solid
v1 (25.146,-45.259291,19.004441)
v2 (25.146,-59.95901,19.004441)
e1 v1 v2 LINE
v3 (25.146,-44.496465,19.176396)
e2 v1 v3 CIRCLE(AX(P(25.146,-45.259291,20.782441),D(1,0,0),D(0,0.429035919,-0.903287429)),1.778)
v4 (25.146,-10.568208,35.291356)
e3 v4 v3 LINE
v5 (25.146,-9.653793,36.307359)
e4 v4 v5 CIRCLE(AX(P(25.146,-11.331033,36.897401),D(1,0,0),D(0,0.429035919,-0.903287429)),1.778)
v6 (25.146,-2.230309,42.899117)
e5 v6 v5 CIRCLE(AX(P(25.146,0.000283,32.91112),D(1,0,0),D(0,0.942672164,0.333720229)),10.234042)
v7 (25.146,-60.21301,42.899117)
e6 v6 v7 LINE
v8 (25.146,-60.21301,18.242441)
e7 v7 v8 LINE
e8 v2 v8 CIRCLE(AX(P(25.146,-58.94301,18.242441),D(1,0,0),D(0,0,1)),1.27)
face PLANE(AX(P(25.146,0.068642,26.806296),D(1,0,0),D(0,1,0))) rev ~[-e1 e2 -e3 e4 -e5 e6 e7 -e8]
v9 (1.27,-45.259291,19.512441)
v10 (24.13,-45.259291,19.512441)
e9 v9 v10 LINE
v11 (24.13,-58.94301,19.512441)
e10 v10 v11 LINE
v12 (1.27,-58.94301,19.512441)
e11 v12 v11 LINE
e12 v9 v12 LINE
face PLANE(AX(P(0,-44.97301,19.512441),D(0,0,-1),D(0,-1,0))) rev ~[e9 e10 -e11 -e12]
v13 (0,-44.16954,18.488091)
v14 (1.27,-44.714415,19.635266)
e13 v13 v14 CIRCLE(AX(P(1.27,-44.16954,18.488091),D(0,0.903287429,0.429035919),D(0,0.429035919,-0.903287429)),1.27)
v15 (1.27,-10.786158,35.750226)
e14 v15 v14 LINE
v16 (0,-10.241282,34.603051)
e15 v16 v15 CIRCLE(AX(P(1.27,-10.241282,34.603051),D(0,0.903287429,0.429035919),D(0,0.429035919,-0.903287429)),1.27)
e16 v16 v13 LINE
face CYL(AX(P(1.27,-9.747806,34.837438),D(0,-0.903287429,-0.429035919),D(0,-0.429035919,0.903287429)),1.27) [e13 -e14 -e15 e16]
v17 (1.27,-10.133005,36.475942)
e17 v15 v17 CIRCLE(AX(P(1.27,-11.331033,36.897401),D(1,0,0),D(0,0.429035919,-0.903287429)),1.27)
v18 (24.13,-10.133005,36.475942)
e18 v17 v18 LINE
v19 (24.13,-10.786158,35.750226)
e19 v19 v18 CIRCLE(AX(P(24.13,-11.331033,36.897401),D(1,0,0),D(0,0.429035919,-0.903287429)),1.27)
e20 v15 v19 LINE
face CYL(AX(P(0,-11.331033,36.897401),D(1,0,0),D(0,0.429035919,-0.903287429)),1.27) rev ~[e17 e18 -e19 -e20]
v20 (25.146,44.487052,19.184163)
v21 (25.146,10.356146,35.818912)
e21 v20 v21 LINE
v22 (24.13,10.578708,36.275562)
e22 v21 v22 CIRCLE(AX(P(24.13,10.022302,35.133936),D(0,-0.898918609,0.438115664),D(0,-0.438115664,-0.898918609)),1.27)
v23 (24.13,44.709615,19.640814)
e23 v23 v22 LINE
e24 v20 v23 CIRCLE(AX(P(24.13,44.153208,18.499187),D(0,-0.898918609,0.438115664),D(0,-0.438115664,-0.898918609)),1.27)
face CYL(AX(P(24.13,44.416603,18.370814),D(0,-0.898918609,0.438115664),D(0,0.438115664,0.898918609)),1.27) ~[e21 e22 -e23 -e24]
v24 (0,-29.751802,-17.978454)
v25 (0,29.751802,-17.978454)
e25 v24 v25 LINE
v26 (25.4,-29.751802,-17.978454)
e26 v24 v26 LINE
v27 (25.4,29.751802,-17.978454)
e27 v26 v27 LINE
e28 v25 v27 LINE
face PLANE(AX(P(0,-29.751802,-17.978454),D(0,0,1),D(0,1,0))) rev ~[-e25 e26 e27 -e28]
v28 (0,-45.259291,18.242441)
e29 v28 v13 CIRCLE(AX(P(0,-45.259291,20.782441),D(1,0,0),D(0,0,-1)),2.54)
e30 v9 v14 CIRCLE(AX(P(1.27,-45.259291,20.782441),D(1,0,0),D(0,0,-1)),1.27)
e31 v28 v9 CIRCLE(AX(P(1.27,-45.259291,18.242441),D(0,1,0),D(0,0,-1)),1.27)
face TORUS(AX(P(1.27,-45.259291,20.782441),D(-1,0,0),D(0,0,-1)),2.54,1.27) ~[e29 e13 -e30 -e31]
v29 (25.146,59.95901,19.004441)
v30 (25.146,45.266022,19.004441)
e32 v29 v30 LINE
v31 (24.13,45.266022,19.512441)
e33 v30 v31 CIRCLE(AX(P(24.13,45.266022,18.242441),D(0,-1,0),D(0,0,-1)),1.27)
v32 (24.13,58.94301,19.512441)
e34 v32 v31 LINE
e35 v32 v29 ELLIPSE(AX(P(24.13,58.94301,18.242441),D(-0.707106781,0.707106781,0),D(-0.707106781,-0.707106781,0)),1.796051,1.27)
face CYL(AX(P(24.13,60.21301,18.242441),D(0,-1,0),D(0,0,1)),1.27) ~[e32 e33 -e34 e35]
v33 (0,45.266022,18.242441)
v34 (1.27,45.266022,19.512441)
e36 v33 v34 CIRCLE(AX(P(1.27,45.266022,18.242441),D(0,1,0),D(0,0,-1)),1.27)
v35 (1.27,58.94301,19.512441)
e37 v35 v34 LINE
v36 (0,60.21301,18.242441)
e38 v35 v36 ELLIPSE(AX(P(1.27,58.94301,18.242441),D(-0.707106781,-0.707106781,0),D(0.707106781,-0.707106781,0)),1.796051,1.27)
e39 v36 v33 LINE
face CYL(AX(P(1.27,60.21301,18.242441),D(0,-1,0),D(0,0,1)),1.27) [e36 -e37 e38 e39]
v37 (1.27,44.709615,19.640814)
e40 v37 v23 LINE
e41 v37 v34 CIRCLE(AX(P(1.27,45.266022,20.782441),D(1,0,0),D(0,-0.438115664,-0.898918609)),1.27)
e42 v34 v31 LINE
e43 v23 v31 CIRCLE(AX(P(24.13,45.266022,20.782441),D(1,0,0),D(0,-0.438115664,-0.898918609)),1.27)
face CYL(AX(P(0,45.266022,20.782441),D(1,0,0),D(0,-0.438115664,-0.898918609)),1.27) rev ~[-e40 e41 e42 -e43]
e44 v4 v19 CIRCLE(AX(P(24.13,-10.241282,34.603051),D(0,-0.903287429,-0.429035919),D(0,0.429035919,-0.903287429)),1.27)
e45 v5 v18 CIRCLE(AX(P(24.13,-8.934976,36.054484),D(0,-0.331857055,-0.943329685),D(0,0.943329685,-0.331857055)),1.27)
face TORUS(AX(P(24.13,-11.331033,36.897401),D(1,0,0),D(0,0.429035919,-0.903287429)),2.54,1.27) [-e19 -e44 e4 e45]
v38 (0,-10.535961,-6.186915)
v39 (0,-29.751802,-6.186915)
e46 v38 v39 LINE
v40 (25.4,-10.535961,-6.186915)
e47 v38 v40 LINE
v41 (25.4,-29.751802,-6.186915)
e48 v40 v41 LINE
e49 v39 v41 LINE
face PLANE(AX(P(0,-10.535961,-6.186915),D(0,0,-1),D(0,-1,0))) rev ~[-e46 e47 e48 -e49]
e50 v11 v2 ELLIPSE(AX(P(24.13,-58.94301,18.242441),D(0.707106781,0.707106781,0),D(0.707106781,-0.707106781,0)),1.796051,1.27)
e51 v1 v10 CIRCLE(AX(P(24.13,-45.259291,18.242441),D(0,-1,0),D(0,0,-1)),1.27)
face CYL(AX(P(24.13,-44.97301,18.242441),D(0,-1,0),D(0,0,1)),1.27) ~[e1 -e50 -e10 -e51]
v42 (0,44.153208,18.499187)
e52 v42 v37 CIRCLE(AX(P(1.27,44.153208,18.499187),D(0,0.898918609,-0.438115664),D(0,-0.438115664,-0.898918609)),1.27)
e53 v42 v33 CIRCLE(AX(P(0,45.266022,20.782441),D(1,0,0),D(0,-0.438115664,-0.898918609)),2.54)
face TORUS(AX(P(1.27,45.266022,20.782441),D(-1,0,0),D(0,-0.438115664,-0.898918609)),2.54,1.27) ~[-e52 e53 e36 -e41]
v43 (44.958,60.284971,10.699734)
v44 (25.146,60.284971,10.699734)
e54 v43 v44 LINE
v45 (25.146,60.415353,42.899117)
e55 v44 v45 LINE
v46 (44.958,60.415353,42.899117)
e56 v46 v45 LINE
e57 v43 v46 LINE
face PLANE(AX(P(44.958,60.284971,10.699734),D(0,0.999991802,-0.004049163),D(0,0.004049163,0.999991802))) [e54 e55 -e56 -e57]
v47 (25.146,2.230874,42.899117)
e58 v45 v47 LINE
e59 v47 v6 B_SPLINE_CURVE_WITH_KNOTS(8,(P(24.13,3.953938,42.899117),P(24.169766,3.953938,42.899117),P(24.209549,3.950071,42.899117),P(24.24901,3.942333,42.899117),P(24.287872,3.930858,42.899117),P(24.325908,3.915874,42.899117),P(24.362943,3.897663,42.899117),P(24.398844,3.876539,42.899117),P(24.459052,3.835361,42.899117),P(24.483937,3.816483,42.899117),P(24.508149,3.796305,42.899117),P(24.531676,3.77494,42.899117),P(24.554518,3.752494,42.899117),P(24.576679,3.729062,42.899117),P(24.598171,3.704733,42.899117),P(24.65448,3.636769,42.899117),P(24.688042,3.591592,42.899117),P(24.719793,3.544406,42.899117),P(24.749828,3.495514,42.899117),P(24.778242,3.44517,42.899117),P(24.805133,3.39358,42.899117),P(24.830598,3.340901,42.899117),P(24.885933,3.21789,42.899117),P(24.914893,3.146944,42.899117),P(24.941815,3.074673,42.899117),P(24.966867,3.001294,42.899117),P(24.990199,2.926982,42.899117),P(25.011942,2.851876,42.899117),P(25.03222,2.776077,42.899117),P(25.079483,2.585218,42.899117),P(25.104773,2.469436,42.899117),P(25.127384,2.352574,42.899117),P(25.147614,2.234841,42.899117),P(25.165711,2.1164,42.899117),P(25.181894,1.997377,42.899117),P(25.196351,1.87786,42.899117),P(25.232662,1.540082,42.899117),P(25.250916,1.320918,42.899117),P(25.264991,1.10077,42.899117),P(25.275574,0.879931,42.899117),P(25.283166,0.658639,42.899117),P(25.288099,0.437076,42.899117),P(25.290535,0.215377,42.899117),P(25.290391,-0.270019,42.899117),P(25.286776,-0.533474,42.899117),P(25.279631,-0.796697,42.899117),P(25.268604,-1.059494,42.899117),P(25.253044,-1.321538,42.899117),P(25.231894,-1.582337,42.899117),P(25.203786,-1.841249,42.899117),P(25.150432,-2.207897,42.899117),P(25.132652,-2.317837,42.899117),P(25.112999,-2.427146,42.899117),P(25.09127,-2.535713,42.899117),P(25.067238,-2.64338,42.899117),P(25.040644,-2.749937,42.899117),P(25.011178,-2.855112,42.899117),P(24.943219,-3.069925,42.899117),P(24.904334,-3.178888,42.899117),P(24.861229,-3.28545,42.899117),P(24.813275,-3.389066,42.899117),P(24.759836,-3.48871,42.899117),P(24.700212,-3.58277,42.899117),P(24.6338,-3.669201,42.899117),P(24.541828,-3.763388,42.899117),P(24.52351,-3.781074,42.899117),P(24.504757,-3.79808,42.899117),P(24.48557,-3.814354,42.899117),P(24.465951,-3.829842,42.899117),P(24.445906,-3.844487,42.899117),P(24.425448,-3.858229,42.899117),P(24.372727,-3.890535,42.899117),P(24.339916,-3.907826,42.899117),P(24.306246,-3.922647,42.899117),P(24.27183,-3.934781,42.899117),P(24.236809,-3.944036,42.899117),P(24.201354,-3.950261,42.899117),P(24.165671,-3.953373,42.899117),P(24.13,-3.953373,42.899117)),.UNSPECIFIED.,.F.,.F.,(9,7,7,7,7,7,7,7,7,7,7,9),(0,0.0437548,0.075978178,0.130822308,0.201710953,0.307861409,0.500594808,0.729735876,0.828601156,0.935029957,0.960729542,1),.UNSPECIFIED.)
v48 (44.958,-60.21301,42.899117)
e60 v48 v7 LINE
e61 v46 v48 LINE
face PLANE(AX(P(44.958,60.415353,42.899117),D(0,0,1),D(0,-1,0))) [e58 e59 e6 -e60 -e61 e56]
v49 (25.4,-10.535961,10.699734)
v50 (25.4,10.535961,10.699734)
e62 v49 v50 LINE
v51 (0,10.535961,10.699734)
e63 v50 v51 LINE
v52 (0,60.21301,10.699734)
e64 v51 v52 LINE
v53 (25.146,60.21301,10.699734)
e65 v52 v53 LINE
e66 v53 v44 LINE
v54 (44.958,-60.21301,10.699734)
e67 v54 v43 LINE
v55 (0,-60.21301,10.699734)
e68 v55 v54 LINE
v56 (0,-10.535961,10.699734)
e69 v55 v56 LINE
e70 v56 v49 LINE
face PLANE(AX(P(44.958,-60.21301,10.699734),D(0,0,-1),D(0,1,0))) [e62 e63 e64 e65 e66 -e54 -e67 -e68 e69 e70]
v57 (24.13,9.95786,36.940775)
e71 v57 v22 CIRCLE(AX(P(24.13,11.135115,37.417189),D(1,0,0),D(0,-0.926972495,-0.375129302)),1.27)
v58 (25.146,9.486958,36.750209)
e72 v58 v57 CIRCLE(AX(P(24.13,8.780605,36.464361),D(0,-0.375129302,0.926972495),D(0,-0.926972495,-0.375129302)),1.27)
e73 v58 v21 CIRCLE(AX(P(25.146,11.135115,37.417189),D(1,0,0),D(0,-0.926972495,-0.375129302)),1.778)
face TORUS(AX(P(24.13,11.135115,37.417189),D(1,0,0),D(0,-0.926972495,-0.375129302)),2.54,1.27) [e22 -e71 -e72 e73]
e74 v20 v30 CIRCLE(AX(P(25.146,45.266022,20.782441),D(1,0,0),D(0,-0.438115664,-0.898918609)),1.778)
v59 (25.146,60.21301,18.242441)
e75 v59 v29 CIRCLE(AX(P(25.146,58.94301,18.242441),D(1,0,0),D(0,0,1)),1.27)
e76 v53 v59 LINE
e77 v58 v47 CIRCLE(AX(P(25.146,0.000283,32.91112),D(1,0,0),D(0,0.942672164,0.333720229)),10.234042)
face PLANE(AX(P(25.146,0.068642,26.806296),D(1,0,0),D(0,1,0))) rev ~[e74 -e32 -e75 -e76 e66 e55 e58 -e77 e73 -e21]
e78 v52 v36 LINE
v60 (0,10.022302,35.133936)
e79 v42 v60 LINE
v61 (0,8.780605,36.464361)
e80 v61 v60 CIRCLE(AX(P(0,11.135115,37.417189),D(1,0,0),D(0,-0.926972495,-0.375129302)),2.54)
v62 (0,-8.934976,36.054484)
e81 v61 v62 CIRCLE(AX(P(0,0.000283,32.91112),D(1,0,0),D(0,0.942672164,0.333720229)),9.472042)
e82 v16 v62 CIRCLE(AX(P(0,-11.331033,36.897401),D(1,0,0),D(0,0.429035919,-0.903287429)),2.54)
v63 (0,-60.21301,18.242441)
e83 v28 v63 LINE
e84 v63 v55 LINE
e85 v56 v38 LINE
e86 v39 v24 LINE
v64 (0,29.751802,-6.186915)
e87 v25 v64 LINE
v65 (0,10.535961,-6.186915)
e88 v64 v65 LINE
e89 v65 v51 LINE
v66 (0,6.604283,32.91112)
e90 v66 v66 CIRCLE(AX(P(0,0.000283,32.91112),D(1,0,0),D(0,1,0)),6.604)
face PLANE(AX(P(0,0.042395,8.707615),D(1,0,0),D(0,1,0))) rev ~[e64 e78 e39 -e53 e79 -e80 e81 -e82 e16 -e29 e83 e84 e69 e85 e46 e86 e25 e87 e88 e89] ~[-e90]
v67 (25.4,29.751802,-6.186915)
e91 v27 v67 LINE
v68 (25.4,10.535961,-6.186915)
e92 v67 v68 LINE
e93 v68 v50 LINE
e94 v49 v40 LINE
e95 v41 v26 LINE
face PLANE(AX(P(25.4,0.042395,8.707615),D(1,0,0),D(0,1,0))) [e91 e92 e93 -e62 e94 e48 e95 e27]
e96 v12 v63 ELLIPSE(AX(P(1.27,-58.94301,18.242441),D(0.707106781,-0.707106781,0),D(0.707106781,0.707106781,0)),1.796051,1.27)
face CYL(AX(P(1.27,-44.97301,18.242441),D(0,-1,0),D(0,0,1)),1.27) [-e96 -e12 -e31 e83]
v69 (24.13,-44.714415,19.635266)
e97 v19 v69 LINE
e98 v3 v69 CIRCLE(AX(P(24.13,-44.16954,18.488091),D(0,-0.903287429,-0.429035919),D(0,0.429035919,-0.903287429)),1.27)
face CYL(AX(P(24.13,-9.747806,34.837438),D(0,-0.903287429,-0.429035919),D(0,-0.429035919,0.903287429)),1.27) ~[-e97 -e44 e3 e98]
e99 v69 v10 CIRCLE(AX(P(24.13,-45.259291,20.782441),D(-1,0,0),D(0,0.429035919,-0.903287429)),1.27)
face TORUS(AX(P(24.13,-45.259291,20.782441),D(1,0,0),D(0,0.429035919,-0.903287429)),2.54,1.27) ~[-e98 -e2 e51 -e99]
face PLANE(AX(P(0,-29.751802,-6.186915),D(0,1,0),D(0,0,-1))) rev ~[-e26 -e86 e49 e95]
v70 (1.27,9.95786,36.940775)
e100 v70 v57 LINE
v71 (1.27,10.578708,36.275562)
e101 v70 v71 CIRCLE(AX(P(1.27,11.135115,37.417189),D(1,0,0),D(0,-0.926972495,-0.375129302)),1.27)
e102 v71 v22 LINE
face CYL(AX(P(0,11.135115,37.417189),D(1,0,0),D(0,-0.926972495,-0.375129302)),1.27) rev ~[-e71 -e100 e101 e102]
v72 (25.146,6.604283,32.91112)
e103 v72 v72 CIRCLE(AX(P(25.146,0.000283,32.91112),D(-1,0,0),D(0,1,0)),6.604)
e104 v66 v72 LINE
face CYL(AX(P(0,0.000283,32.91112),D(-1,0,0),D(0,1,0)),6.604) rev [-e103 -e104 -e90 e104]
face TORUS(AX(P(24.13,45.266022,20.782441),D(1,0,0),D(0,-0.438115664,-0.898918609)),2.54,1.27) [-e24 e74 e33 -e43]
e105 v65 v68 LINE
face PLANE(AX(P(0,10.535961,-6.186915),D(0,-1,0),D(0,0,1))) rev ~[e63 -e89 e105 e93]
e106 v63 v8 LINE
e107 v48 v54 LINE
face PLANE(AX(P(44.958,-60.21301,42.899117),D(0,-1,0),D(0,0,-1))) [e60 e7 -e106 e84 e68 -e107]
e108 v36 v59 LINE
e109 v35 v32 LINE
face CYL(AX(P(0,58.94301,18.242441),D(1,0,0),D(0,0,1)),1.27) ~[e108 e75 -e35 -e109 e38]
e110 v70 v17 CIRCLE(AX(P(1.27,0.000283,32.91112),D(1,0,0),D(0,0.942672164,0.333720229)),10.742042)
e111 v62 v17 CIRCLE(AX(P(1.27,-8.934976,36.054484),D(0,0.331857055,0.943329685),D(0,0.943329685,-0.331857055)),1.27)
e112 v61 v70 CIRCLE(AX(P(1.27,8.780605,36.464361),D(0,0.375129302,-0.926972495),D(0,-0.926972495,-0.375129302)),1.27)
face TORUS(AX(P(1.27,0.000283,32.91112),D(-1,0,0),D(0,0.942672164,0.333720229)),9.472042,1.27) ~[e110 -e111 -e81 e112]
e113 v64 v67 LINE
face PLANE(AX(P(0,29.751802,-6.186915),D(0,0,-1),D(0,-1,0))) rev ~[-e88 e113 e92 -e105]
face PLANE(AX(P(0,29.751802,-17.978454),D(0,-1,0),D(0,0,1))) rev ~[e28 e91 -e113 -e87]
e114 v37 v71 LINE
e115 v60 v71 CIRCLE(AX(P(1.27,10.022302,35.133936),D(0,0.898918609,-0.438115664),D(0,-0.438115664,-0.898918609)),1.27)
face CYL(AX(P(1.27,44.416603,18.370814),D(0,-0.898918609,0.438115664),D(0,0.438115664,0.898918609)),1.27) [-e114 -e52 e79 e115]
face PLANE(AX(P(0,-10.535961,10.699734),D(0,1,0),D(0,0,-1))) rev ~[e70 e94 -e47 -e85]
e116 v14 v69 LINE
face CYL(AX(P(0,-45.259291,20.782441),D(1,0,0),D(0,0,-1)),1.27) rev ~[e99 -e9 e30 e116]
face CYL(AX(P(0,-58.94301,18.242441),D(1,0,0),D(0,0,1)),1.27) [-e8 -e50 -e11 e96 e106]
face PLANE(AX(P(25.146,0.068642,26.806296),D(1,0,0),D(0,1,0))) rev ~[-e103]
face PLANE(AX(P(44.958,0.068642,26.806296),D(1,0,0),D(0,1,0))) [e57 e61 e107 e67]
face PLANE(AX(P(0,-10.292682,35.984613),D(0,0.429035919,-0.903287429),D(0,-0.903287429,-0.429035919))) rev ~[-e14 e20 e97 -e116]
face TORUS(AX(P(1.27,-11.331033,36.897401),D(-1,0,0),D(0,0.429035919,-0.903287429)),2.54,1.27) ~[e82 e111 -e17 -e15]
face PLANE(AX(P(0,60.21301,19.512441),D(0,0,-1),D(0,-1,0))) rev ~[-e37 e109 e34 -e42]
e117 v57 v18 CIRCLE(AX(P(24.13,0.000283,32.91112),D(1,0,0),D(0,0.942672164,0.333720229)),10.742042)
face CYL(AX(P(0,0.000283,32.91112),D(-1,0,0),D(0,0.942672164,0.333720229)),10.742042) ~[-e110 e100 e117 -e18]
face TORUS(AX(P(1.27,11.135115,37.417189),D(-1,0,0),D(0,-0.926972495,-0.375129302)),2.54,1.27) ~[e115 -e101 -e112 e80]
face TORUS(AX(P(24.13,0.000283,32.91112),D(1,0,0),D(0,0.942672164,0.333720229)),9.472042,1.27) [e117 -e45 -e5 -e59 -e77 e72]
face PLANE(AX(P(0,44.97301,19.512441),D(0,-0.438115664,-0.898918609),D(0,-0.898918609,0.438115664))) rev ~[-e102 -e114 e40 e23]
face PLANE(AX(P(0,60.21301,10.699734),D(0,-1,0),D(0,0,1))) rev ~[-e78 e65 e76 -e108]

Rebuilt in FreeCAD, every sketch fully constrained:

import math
import FreeCAD as App
import Part
import Sketcher
from FreeCAD import Vector
Q = App.Units.Quantity


def edges_at(feature, points):
    """Names of the edges that pass closest to the given points."""
    edges = feature.Shape.Edges
    near = lambda p: min(range(len(edges)), key=lambda i: edges[i].distToShape(Part.Vertex(*p))[0])
    return sorted({f"Edge{near(p) + 1}" for p in points})


def add_polygon(sketch, points):
    """Adds a closed chain of lines whose ends are joined by coincident constraints."""
    first, n = sketch.GeometryCount, len(points)
    for a, b in zip(points, points[1:] + points[:1]):
        sketch.addGeometry(Part.LineSegment(App.Vector(*a, 0), App.Vector(*b, 0)), False)
    for i in range(n):
        sketch.addConstraint(Sketcher.Constraint("Coincident", first + i, 2, first + (i + 1) % n, 1))

doc = App.newDocument("Part")
body = doc.addObject("PartDesign::Body", "Body")

# Sketch on YZ plane
sketch1 = body.newObject("Sketcher::SketchObject", "Sketch")
sketch1.AttachmentSupport = (doc.getObject("YZ_Plane"), [""])
sketch1.MapMode = "FlatFace"
sketch1.addGeometry(Part.LineSegment(Vector(-44.97301, 19.512441, 0), Vector(-60.21301, 19.512441, 0)), False)
sketch1.addGeometry(Part.LineSegment(Vector(-60.21301, 19.512441, 0), Vector(-60.21301, 10.699734, 0)), False)
sketch1.addGeometry(Part.LineSegment(Vector(-60.21301, 10.699734, 0), Vector(-10.535961, 10.699734, 0)), False)
sketch1.addGeometry(Part.LineSegment(Vector(-10.535961, 10.699734, 0), Vector(-10.535961, -6.186915, 0)), False)
sketch1.addGeometry(Part.LineSegment(Vector(-10.535961, -6.186915, 0), Vector(-29.751802, -6.186915, 0)), False)
sketch1.addGeometry(Part.LineSegment(Vector(-29.751802, -6.186915, 0), Vector(-29.751802, -17.978454, 0)), False)
sketch1.addGeometry(Part.LineSegment(Vector(-29.751802, -17.978454, 0), Vector(29.751802, -17.978454, 0)), False)
sketch1.addGeometry(Part.LineSegment(Vector(29.751802, -17.978454, 0), Vector(29.751802, -6.186915, 0)), False)
sketch1.addGeometry(Part.LineSegment(Vector(29.751802, -6.186915, 0), Vector(10.535961, -6.186915, 0)), False)
sketch1.addGeometry(Part.LineSegment(Vector(10.535961, -6.186915, 0), Vector(10.535961, 10.699734, 0)), False)
sketch1.addGeometry(Part.LineSegment(Vector(10.535961, 10.699734, 0), Vector(60.21301, 10.699734, 0)), False)
sketch1.addGeometry(Part.LineSegment(Vector(60.21301, 10.699734, 0), Vector(60.21301, 19.512441, 0)), False)
sketch1.addGeometry(Part.LineSegment(Vector(60.21301, 19.512441, 0), Vector(44.97301, 19.512441, 0)), False)
sketch1.addGeometry(Part.LineSegment(Vector(44.97301, 19.512441, 0), Vector(10.126507, 36.495957, 0)), False)
sketch1.addGeometry(Part.ArcOfCircle(Part.Circle(Vector(0.000283, 32.91112, 0), Vector(0, 0, 1), 10.742042), math.radians(19.494735), math.radians(163.374303)), False)
sketch1.addGeometry(Part.LineSegment(Vector(-10.292682, 35.984613, 0), Vector(-44.97301, 19.512441, 0)), False)
sketch1.addGeometry(Part.Circle(Vector(0.000283, 32.91112, 0), Vector(0, 0, 1), 6.604), False)
sketch1.addConstraint(Sketcher.Constraint("Coincident", 0, 2, 1, 1))
sketch1.addConstraint(Sketcher.Constraint("Coincident", 1, 2, 2, 1))
sketch1.addConstraint(Sketcher.Constraint("Coincident", 2, 2, 3, 1))
sketch1.addConstraint(Sketcher.Constraint("Coincident", 3, 2, 4, 1))
sketch1.addConstraint(Sketcher.Constraint("Coincident", 4, 2, 5, 1))
sketch1.addConstraint(Sketcher.Constraint("Coincident", 5, 2, 6, 1))
sketch1.addConstraint(Sketcher.Constraint("Coincident", 6, 2, 7, 1))
sketch1.addConstraint(Sketcher.Constraint("Coincident", 7, 2, 8, 1))
sketch1.addConstraint(Sketcher.Constraint("Coincident", 8, 2, 9, 1))
sketch1.addConstraint(Sketcher.Constraint("Coincident", 9, 2, 10, 1))
sketch1.addConstraint(Sketcher.Constraint("Coincident", 10, 2, 11, 1))
sketch1.addConstraint(Sketcher.Constraint("Coincident", 11, 2, 12, 1))
sketch1.addConstraint(Sketcher.Constraint("Coincident", 12, 2, 13, 1))
sketch1.addConstraint(Sketcher.Constraint("Coincident", 13, 2, 14, 1))
sketch1.addConstraint(Sketcher.Constraint("Coincident", 14, 2, 15, 1))
sketch1.addConstraint(Sketcher.Constraint("Coincident", 15, 2, 0, 1))
sketch1.addConstraint(Sketcher.Constraint("Horizontal", 0))
sketch1.addConstraint(Sketcher.Constraint("Vertical", 1))
sketch1.addConstraint(Sketcher.Constraint("Horizontal", 2))
sketch1.addConstraint(Sketcher.Constraint("Vertical", 3))
sketch1.addConstraint(Sketcher.Constraint("Horizontal", 4))
sketch1.addConstraint(Sketcher.Constraint("Vertical", 5))
sketch1.addConstraint(Sketcher.Constraint("Horizontal", 6))
sketch1.addConstraint(Sketcher.Constraint("Vertical", 7))
sketch1.addConstraint(Sketcher.Constraint("Horizontal", 8))
sketch1.addConstraint(Sketcher.Constraint("Vertical", 9))
sketch1.addConstraint(Sketcher.Constraint("Horizontal", 10))
sketch1.addConstraint(Sketcher.Constraint("Vertical", 11))
sketch1.addConstraint(Sketcher.Constraint("Horizontal", 12))
sketch1.addConstraint(Sketcher.Constraint("Coincident", 16, 3, 14, 3))
sketch1.addConstraint(Sketcher.Constraint("Symmetric", 4, 2, 7, 2, -2))
sketch1.addConstraint(Sketcher.Constraint("Symmetric", 2, 2, 9, 2, -2))
sketch1.addConstraint(Sketcher.Constraint("Symmetric", 0, 2, 11, 2, -2))
sketch1.addConstraint(Sketcher.Constraint("Equal", 0, 12))
sketch1.addConstraint(Sketcher.Constraint("Diameter", 16, Q("0.52 in")))
sketch1.addConstraint(Sketcher.Constraint("DistanceX", 0, 2, 0, 1, Q("0.6 in")))
sketch1.addConstraint(Sketcher.Constraint("Radius", 14, 10.742042))
sketch1.addConstraint(Sketcher.Constraint("DistanceX", 2, 1, 2, 2, 49.677049))
sketch1.addConstraint(Sketcher.Constraint("DistanceX", 4, 2, 4, 1, 19.215841))
sketch1.addConstraint(Sketcher.Constraint("DistanceY", 3, 2, 3, 1, 16.886649))
sketch1.addConstraint(Sketcher.Constraint("DistanceY", 5, 2, 5, 1, 11.791539))
sketch1.addConstraint(Sketcher.Constraint("DistanceX", 4, 2, -1, 1, 29.751802))
sketch1.addConstraint(Sketcher.Constraint("DistanceY", 1, 2, 1, 1, 8.812706))
sketch1.addConstraint(Sketcher.Constraint("DistanceY", -1, 1, 14, 3, 32.91112))
sketch1.addConstraint(Sketcher.Constraint("DistanceY", -1, 1, 0, 2, 19.512441))
sketch1.addConstraint(Sketcher.Constraint("DistanceX", 14, 2, -1, 1, 10.292682))
sketch1.addConstraint(Sketcher.Constraint("DistanceX", 14, 3, 6, 2, 29.751519))
sketch1.addConstraint(Sketcher.Constraint("DistanceX", 14, 2, 13, 2, 20.419188))
pad1 = body.newObject("PartDesign::Pad", "Pad")
pad1.Profile = sketch1
pad1.Length = Q("1 in")
doc.recompute()

fillet = body.newObject("PartDesign::Fillet", "Fillet")
fillet.Base = (pad1, edges_at(pad1, [
    (25.4, -27.633, 27.749),
    (25.4, -0.269, 43.65),
    (25.4, 27.55, 28.004),
    (25.4, 52.593, 19.512),
    (25.4, -52.593, 19.512),
    (12.7, -44.973, 19.512),
    (12.7, -60.213, 19.512),
    (0, -52.593, 19.512),
    (0, -27.633, 27.749),
    (0, -0.269, 43.65),
    (0, 27.55, 28.004),
    (0, 52.593, 19.512),
    (12.7, 60.213, 19.512),
    (12.7, 44.973, 19.512),
    (12.7, -10.293, 35.985),
    (12.7, 10.127, 36.496),
]))
fillet.Radius = Q("0.05 in")

# Sketch on YZ plane
sketch2 = body.newObject("Sketcher::SketchObject", "Sketch001")
sketch2.AttachmentSupport = (doc.getObject("YZ_Plane"), [""])
sketch2.MapMode = "FlatFace"
sketch2.AttachmentOffset = App.Placement(Vector(0, 0, 1.77 * 25.4), App.Rotation())
add_polygon(sketch2, [(-60.21301, 42.899117), (-60.21301, 10.699734), (60.284971, 10.699734), (60.415353, 42.899117)])  # lines 0-3
sketch2.addConstraint(Sketcher.Constraint("Vertical", 0))
sketch2.addConstraint(Sketcher.Constraint("Horizontal", 1))
sketch2.addConstraint(Sketcher.Constraint("Horizontal", 3))
sketch2.addConstraint(Sketcher.Constraint("DistanceX", 1, 1, 1, 2, 120.49798))
sketch2.addConstraint(Sketcher.Constraint("DistanceX", 3, 2, 3, 1, 120.628362))
sketch2.addConstraint(Sketcher.Constraint("DistanceY", 0, 2, 0, 1, 32.199383))
sketch2.addConstraint(Sketcher.Constraint("DistanceX", 0, 2, -1, 1, 60.21301))
sketch2.addConstraint(Sketcher.Constraint("DistanceY", -1, 1, 0, 2, 10.699734))
pad2 = body.newObject("PartDesign::Pad", "Pad001")
pad2.Profile = sketch2
pad2.Length = Q("0.78 in")
pad2.Reversed = True

doc.recompute()
